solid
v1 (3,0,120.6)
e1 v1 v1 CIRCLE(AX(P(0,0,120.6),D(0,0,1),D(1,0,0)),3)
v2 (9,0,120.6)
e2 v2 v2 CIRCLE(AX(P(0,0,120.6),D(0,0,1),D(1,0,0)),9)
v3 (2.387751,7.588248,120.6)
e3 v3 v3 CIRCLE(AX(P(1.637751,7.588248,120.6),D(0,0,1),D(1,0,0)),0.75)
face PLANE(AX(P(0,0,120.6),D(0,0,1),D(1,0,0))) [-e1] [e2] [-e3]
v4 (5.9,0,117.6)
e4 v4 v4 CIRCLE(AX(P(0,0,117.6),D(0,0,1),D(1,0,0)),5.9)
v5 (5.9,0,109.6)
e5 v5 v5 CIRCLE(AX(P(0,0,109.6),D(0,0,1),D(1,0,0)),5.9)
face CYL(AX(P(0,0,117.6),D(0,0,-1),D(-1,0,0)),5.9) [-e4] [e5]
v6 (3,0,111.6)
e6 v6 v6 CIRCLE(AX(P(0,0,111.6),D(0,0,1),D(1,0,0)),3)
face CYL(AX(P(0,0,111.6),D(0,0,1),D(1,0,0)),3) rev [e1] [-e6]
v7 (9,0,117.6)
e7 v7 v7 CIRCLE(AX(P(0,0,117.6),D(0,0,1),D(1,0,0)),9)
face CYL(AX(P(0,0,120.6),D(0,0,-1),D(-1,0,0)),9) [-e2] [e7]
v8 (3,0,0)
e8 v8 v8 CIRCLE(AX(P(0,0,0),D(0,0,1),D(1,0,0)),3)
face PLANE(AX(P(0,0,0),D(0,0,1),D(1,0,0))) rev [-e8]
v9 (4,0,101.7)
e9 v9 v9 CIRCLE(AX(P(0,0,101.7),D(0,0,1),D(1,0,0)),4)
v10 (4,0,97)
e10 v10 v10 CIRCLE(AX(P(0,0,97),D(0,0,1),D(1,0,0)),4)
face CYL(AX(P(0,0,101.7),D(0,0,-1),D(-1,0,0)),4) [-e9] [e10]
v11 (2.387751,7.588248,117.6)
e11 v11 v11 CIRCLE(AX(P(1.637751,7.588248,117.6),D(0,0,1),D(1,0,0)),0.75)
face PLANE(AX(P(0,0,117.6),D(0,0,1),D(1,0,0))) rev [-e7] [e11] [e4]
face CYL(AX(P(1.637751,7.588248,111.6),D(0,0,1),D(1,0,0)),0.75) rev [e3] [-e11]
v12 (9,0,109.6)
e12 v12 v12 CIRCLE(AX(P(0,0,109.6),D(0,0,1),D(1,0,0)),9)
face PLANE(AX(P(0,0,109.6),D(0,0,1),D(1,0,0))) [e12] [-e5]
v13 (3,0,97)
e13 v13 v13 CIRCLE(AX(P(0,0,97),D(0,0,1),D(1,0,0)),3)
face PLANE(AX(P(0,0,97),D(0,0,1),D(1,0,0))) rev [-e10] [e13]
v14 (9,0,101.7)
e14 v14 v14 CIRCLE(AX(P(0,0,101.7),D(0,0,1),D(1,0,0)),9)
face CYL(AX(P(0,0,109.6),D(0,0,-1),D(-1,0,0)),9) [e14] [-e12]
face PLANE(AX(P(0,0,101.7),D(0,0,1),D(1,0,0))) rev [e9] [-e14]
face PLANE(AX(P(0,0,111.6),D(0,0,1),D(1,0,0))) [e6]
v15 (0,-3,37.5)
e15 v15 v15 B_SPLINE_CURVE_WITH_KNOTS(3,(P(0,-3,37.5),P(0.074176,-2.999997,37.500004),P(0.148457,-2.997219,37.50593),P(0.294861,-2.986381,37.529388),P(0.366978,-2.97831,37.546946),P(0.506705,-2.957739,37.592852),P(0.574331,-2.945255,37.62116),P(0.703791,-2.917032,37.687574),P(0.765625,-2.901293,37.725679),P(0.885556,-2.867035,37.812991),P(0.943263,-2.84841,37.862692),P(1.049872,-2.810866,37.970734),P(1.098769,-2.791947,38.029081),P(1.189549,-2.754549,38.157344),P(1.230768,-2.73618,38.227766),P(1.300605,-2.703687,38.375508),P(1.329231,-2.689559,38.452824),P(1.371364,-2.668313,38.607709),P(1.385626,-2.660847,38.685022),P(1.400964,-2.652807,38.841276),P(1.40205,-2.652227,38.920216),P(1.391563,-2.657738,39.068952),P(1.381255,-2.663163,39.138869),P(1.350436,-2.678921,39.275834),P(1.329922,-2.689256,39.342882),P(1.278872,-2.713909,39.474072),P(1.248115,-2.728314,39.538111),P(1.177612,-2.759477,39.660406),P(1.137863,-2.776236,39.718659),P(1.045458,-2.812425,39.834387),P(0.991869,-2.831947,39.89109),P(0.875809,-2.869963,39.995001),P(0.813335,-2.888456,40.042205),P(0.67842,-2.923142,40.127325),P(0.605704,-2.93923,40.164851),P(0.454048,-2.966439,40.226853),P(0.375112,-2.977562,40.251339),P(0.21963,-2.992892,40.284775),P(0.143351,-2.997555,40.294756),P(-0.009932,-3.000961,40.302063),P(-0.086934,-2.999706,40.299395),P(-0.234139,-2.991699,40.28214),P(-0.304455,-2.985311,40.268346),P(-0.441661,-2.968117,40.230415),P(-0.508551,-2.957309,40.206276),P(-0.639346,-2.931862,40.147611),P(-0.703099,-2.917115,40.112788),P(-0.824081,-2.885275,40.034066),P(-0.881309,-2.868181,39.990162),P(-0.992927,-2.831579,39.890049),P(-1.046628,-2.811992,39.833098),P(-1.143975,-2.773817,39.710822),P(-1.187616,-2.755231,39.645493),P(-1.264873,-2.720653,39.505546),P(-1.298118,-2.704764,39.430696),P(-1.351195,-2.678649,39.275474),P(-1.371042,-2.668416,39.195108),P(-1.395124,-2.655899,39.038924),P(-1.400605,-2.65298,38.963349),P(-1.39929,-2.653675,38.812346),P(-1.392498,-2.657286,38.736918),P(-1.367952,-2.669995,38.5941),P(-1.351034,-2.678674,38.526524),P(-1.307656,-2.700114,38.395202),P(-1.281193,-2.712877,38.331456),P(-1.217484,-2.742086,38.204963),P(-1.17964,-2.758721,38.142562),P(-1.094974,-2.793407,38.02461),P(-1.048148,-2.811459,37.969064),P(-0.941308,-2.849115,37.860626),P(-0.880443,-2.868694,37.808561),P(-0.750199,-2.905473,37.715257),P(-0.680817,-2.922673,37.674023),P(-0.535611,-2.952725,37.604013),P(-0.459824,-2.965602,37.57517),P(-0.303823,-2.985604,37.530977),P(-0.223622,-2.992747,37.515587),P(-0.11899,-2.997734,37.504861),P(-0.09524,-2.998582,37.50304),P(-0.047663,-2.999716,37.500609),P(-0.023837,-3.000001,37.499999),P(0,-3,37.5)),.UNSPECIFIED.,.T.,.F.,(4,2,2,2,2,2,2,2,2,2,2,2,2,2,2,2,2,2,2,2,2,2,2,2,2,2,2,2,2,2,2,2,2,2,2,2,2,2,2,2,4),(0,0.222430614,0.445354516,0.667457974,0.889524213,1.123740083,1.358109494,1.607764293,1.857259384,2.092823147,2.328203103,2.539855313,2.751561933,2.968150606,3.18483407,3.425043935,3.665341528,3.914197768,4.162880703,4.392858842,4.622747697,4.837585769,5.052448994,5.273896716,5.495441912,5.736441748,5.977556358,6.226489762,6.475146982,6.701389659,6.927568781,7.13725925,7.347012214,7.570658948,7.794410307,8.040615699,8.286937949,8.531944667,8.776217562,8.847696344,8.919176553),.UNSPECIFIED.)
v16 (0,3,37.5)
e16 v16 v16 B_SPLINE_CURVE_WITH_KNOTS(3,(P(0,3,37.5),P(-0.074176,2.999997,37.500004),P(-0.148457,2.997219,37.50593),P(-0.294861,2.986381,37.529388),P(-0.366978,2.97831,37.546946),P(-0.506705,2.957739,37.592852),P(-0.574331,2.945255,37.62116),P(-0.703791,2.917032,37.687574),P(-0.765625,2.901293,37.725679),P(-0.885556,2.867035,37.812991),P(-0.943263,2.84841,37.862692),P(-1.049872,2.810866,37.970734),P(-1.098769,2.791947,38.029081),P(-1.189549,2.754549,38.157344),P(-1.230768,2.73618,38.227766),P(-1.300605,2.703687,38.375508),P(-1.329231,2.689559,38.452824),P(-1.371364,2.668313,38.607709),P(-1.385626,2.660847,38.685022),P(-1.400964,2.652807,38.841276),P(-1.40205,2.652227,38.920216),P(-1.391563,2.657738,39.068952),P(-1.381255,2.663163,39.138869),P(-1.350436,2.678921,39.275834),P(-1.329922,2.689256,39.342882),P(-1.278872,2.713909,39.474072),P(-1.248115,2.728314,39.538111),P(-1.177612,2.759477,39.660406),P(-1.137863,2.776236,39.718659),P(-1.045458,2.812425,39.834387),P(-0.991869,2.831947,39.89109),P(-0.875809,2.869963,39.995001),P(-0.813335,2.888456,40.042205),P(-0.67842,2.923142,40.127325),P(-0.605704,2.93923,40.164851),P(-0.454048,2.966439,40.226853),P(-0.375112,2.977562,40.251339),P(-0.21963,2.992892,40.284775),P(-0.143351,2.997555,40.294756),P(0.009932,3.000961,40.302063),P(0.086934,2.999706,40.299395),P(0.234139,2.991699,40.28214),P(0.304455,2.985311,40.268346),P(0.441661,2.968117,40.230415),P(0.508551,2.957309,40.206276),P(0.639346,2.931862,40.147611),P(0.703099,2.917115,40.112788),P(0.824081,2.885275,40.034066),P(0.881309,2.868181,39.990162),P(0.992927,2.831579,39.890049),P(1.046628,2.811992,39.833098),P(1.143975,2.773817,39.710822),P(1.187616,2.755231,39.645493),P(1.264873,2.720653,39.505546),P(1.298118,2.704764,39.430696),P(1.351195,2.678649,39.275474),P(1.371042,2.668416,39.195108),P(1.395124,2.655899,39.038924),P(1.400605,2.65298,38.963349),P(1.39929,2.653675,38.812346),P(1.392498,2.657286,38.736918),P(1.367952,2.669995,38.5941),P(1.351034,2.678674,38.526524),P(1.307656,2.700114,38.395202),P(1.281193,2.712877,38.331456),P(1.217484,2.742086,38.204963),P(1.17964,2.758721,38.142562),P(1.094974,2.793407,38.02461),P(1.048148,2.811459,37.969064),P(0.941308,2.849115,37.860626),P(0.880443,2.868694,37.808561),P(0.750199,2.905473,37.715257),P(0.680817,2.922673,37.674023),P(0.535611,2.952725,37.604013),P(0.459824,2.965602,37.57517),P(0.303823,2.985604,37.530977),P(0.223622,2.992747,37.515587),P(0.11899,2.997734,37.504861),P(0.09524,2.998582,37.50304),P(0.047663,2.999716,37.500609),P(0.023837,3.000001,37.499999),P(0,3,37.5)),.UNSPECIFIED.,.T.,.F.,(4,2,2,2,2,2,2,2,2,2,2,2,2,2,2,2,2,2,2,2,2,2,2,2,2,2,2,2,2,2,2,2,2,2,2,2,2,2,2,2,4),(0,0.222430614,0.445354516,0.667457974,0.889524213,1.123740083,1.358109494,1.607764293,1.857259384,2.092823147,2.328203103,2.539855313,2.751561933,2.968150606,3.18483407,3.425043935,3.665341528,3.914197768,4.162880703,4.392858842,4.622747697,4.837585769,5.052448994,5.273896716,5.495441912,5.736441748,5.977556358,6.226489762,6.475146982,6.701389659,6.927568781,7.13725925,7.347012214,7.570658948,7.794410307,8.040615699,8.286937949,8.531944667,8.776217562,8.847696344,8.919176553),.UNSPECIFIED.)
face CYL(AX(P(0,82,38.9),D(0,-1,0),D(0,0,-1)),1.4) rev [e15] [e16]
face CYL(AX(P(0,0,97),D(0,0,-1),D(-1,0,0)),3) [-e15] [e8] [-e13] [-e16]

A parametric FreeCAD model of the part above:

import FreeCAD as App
import Part
import Sketcher

V = App.Vector

doc = App.newDocument("Part")
params = doc.addObject("Spreadsheet::Sheet", "Params")
for row, (alias, value) in enumerate([
    ("sketch1_diameter", "6 mm"),
    ("pad1_length", "97 mm"),
    ("sketch2_diameter", "8 mm"),
    ("pad2_length", "4.7 mm"),
    ("sketch3_diameter", "18 mm"),
    ("pad3_length", "7.9 mm"),
    ("sketch4_diameter", "11.8 mm"),
    ("pad4_length", "8 mm"),
    ("sketch5_diameter", "18 mm"),
    ("pad5_length", "3 mm"),
    ("sketch6_diameter", "2.8 mm"),
    ("sketch7_diameter", "6 mm"),
    ("sketch7_diameter2", "1.5 mm"),
    ("pocket2_length", "9 mm"),
], start=1):
    params.set(f"A{row}", alias)
    params.set(f"B{row}", "=" + value)
    params.setAlias(f"B{row}", alias)

body = doc.addObject("PartDesign::Body", "Body")

sketch1 = doc.addObject("Sketcher::SketchObject", "Sketch")
body.addObject(sketch1)
sketch1.AttachmentSupport = (doc.XY_Plane, [""])
sketch1.MapMode = "FlatFace"
sketch1.addGeometry(Part.Circle(V(0, 0, 0), V(0, 0, 1), 3), False)
sketch1.addConstraint([
    Sketcher.Constraint("Coincident", 0, 3, -1, 1),
    Sketcher.Constraint("Diameter", 0, 6.0),
])
sketch1.setExpression("Constraints[1]", "Params.sketch1_diameter")
pad1 = doc.addObject("PartDesign::Pad", "Pad")
body.addObject(pad1)
pad1.Profile = sketch1
pad1.setExpression("Length", "Params.pad1_length")

sketch2 = doc.addObject("Sketcher::SketchObject", "Sketch001")
body.addObject(sketch2)
sketch2.AttachmentSupport = (doc.XY_Plane, [""])
sketch2.MapMode = "FlatFace"
sketch2.AttachmentOffset = App.Placement(V(0, 0, 97), App.Rotation())
sketch2.addGeometry(Part.Circle(V(0, 0, 0), V(0, 0, 1), 4), False)
sketch2.addConstraint([
    Sketcher.Constraint("Coincident", 0, 3, -1, 1),
    Sketcher.Constraint("Diameter", 0, 8.0),
])
sketch2.setExpression("Constraints[1]", "Params.sketch2_diameter")
pad2 = doc.addObject("PartDesign::Pad", "Pad001")
body.addObject(pad2)
pad2.Profile = sketch2
pad2.setExpression("Length", "Params.pad2_length")

sketch3 = doc.addObject("Sketcher::SketchObject", "Sketch002")
body.addObject(sketch3)
sketch3.AttachmentSupport = (doc.XY_Plane, [""])
sketch3.MapMode = "FlatFace"
sketch3.AttachmentOffset = App.Placement(V(0, 0, 101.7), App.Rotation())
sketch3.addGeometry(Part.Circle(V(0, 0, 0), V(0, 0, 1), 9), False)
sketch3.addConstraint([
    Sketcher.Constraint("Coincident", 0, 3, -1, 1),
    Sketcher.Constraint("Diameter", 0, 18.0),
])
sketch3.setExpression("Constraints[1]", "Params.sketch3_diameter")
pad3 = doc.addObject("PartDesign::Pad", "Pad002")
body.addObject(pad3)
pad3.Profile = sketch3
pad3.setExpression("Length", "Params.pad3_length")

sketch4 = doc.addObject("Sketcher::SketchObject", "Sketch003")
body.addObject(sketch4)
sketch4.AttachmentSupport = (doc.XY_Plane, [""])
sketch4.MapMode = "FlatFace"
sketch4.AttachmentOffset = App.Placement(V(0, 0, 109.6), App.Rotation())
sketch4.addGeometry(Part.Circle(V(0, 0, 0), V(0, 0, 1), 5.9), False)
sketch4.addConstraint([
    Sketcher.Constraint("Coincident", 0, 3, -1, 1),
    Sketcher.Constraint("Diameter", 0, 11.8),
])
sketch4.setExpression("Constraints[1]", "Params.sketch4_diameter")
pad4 = doc.addObject("PartDesign::Pad", "Pad003")
body.addObject(pad4)
pad4.Profile = sketch4
pad4.setExpression("Length", "Params.pad4_length")

sketch5 = doc.addObject("Sketcher::SketchObject", "Sketch004")
body.addObject(sketch5)
sketch5.AttachmentSupport = (doc.XY_Plane, [""])
sketch5.MapMode = "FlatFace"
sketch5.AttachmentOffset = App.Placement(V(0, 0, 117.6), App.Rotation())
sketch5.addGeometry(Part.Circle(V(0, 0, 0), V(0, 0, 1), 9), False)
sketch5.addConstraint([
    Sketcher.Constraint("Coincident", 0, 3, -1, 1),
    Sketcher.Constraint("Diameter", 0, 18.0),
])
sketch5.setExpression("Constraints[1]", "Params.sketch5_diameter")
pad5 = doc.addObject("PartDesign::Pad", "Pad004")
body.addObject(pad5)
pad5.Profile = sketch5
pad5.setExpression("Length", "Params.pad5_length")

sketch6 = doc.addObject("Sketcher::SketchObject", "Sketch005")
body.addObject(sketch6)
sketch6.AttachmentSupport = (doc.XZ_Plane, [""])
sketch6.MapMode = "FlatFace"
sketch6.addGeometry(Part.Circle(V(0, 38.9, 0), V(0, 0, 1), 1.4), False)
sketch6.addConstraint([
    Sketcher.Constraint("PointOnObject", 0, 3, -2),
    Sketcher.Constraint("Diameter", 0, 2.8),
    Sketcher.Constraint("DistanceY", -1, 1, 0, 3, 38.9),
])
sketch6.setExpression("Constraints[1]", "Params.sketch6_diameter")
pocket1 = doc.addObject("PartDesign::Pocket", "Pocket")
body.addObject(pocket1)
pocket1.Profile = sketch6
pocket1.Type = "ThroughAll"
pocket1.Midplane = True

sketch7 = doc.addObject("Sketcher::SketchObject", "Sketch006")
body.addObject(sketch7)
sketch7.AttachmentSupport = (doc.XY_Plane, [""])
sketch7.MapMode = "FlatFace"
sketch7.AttachmentOffset = App.Placement(V(0, 0, 120.6), App.Rotation())
sketch7.addGeometry([
    Part.Circle(V(0, 0, 0), V(0, 0, 1), 3),
    Part.Circle(V(1.637751, 7.588248, 0), V(0, 0, 1), 0.75),
], False)
sketch7.addConstraint([
    Sketcher.Constraint("Coincident", 0, 3, -1, 1),
    Sketcher.Constraint("Diameter", 0, 6.0),
    Sketcher.Constraint("Diameter", 1, 1.5),
    Sketcher.Constraint("DistanceX", -1, 1, 1, 3, 1.637751),
    Sketcher.Constraint("DistanceY", -1, 1, 1, 3, 7.588248),
])
sketch7.setExpression("Constraints[1]", "Params.sketch7_diameter")
sketch7.setExpression("Constraints[2]", "Params.sketch7_diameter2")
pocket2 = doc.addObject("PartDesign::Pocket", "Pocket001")
body.addObject(pocket2)
pocket2.Profile = sketch7
pocket2.setExpression("Length", "Params.pocket2_length")

doc.recompute()
